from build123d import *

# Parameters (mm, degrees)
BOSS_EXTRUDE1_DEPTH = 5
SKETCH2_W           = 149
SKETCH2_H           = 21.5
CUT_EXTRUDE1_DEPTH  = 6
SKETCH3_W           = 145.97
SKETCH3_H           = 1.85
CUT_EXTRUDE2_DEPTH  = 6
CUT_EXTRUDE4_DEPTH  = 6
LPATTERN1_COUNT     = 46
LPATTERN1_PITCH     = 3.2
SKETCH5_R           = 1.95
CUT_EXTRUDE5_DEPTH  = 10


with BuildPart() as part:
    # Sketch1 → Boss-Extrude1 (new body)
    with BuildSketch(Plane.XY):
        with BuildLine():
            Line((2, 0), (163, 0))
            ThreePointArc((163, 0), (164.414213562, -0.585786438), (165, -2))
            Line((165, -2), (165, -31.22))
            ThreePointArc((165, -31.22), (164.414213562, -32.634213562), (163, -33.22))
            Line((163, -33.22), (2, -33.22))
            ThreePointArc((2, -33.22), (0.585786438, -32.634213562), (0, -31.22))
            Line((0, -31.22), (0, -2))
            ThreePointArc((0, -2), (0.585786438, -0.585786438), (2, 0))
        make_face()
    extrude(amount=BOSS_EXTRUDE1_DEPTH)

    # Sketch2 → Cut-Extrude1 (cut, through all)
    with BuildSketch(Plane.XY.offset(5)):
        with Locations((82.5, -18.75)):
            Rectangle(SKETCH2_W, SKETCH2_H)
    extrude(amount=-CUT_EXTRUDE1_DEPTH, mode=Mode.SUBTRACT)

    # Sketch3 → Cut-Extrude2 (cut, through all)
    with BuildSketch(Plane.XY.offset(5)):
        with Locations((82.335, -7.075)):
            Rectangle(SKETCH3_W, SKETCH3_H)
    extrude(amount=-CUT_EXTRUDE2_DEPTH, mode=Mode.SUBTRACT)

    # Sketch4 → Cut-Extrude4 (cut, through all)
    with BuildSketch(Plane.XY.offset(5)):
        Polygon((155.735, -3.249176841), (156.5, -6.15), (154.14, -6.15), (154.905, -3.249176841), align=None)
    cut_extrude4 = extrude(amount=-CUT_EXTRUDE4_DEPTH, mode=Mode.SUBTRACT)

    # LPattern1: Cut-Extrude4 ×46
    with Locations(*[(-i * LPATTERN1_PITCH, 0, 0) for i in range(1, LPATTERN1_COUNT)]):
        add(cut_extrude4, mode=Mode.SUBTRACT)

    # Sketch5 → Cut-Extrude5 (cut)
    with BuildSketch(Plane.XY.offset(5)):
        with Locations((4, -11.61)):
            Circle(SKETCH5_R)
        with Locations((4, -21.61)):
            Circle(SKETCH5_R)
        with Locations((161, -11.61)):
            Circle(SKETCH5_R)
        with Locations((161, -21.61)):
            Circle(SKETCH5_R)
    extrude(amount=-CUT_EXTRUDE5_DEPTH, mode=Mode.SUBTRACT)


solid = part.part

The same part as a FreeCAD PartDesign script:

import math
import FreeCAD as App
import Part
import Sketcher

V = App.Vector

doc = App.newDocument("Part")
params = doc.addObject("Spreadsheet::Sheet", "Params")
for row, (alias, value) in enumerate([
    ("sketch1_radius", "2 mm"),
    ("sketch1_width", "161 mm"),
    ("sketch1_height", "29.22 mm"),
    ("pad1_length", "5 mm"),
    ("sketch2_width", "149 mm"),
    ("sketch2_height", "21.5 mm"),
    ("sketch3_width", "145.97 mm"),
    ("sketch3_height", "1.85 mm"),
    ("sketch4_length", "3 mm"),
    ("sketch4_width", "0.83 mm"),
    ("sketch4_width2", "2.36 mm"),
    ("linearpattern_pitch", "3.2 mm"),
    ("sketch5_diameter", "3.9 mm"),
    ("pocket4_length", "10 mm"),
], start=1):
    params.set(f"A{row}", alias)
    params.set(f"B{row}", "=" + value)
    params.setAlias(f"B{row}", alias)

body = doc.addObject("PartDesign::Body", "Body")

# Sketch on XY plane
sketch1 = body.newObject("Sketcher::SketchObject", "Sketch")
sketch1.AttachmentSupport = (doc.getObject("XY_Plane"), [""])
sketch1.MapMode = "FlatFace"
sketch1.addGeometry([
    Part.LineSegment(V(163, 0, 0), V(2, 0, 0)),  # 0
    Part.ArcOfCircle(Part.Circle(V(2, -2, 0), V(0, 0, 1), 2), math.radians(90), math.radians(180)),  # 1
    Part.LineSegment(V(0, -2, 0), V(0, -31.2, 0)),  # 2
    Part.ArcOfCircle(Part.Circle(V(2, -31.2, 0), V(0, 0, 1), 2), math.radians(-180), math.radians(-90)),  # 3
    Part.LineSegment(V(2, -33.2, 0), V(163, -33.2, 0)),  # 4
    Part.ArcOfCircle(Part.Circle(V(163, -31.2, 0), V(0, 0, 1), 2), math.radians(-90), math.radians(0)),  # 5
    Part.LineSegment(V(165, -31.2, 0), V(165, -2, 0)),  # 6
    Part.ArcOfCircle(Part.Circle(V(163, -2, 0), V(0, 0, 1), 2), math.radians(0), math.radians(90)),  # 7
], False)
sketch1.addConstraint([
    Sketcher.Constraint("Tangent", 0, 2, 1, 1),
    Sketcher.Constraint("Tangent", 1, 2, 2, 1),
    Sketcher.Constraint("Tangent", 2, 2, 3, 1),
    Sketcher.Constraint("Tangent", 3, 2, 4, 1),
    Sketcher.Constraint("Tangent", 4, 2, 5, 1),
    Sketcher.Constraint("Tangent", 5, 2, 6, 1),
    Sketcher.Constraint("Tangent", 6, 2, 7, 1),
    Sketcher.Constraint("Tangent", 7, 2, 0, 1),
    Sketcher.Constraint("Horizontal", 0),
    Sketcher.Constraint("Vertical", 2),
    Sketcher.Constraint("Horizontal", 4),
    Sketcher.Constraint("Vertical", 6),
    Sketcher.Constraint("Equal", 1, 3),
    Sketcher.Constraint("Equal", 3, 5),
    Sketcher.Constraint("Equal", 5, 7),
    Sketcher.Constraint("PointOnObject", 0, 2, -1),
    Sketcher.Constraint("PointOnObject", 1, 2, -2),
    Sketcher.Constraint("Radius", 1, 2.0),
    Sketcher.Constraint("DistanceX", 0, 2, 0, 1, 161.0),
    Sketcher.Constraint("DistanceY", 2, 2, 2, 1, 29.22),
])
sketch1.setExpression("Constraints[17]", "Params.sketch1_radius")
sketch1.setExpression("Constraints[18]", "Params.sketch1_width")
sketch1.setExpression("Constraints[19]", "Params.sketch1_height")
pad1 = body.newObject("PartDesign::Pad", "Pad")
pad1.Profile = sketch1
pad1.setExpression("Length", "Params.pad1_length")

# Sketch on XY plane
sketch2 = body.newObject("Sketcher::SketchObject", "Sketch001")
sketch2.AttachmentSupport = (doc.getObject("XY_Plane"), [""])
sketch2.MapMode = "FlatFace"
sketch2.AttachmentOffset = App.Placement(V(0, 0, 5), App.Rotation())
sketch2.addGeometry([
    Part.LineSegment(V(8, -8, 0), V(8, -30, 0)),
    Part.LineSegment(V(8, -30, 0), V(157, -30, 0)),
    Part.LineSegment(V(157, -30, 0), V(157, -8, 0)),
    Part.LineSegment(V(157, -8, 0), V(8, -8, 0)),
], False)
sketch2.addConstraint([
    Sketcher.Constraint("Coincident", 0, 2, 1, 1),
    Sketcher.Constraint("Coincident", 1, 2, 2, 1),
    Sketcher.Constraint("Coincident", 2, 2, 3, 1),
    Sketcher.Constraint("Coincident", 3, 2, 0, 1),
    Sketcher.Constraint("Vertical", 0),
    Sketcher.Constraint("Horizontal", 1),
    Sketcher.Constraint("Vertical", 2),
    Sketcher.Constraint("Horizontal", 3),
    Sketcher.Constraint("DistanceX", 1, 1, 1, 2, 149.0),
    Sketcher.Constraint("DistanceY", 0, 2, 0, 1, 21.5),
    Sketcher.Constraint("DistanceX", -1, 1, 0, 2, 8.0),
    Sketcher.Constraint("DistanceY", 2, 2, -1, 1, 8.0),
])
sketch2.setExpression("Constraints[8]", "Params.sketch2_width")
sketch2.setExpression("Constraints[9]", "Params.sketch2_height")
pocket1 = body.newObject("PartDesign::Pocket", "Pocket")
pocket1.Profile = sketch2
pocket1.Type = "ThroughAll"

# Sketch on XY plane
sketch3 = body.newObject("Sketcher::SketchObject", "Sketch002")
sketch3.AttachmentSupport = (doc.getObject("XY_Plane"), [""])
sketch3.MapMode = "FlatFace"
sketch3.AttachmentOffset = App.Placement(V(0, 0, 5), App.Rotation())
sketch3.addGeometry([
    Part.LineSegment(V(9.3, -6.2, 0), V(9.3, -8, 0)),
    Part.LineSegment(V(9.3, -8, 0), V(155.3, -8, 0)),
    Part.LineSegment(V(155.3, -8, 0), V(155.3, -6.2, 0)),
    Part.LineSegment(V(155.3, -6.2, 0), V(9.3, -6.2, 0)),
], False)
sketch3.addConstraint([
    Sketcher.Constraint("Coincident", 0, 2, 1, 1),
    Sketcher.Constraint("Coincident", 1, 2, 2, 1),
    Sketcher.Constraint("Coincident", 2, 2, 3, 1),
    Sketcher.Constraint("Coincident", 3, 2, 0, 1),
    Sketcher.Constraint("Vertical", 0),
    Sketcher.Constraint("Horizontal", 1),
    Sketcher.Constraint("Vertical", 2),
    Sketcher.Constraint("Horizontal", 3),
    Sketcher.Constraint("DistanceY", 0, 2, -1, 1, 8.0),
    Sketcher.Constraint("DistanceX", 1, 1, 1, 2, 145.97),
    Sketcher.Constraint("DistanceY", 0, 2, 0, 1, 1.85),
    Sketcher.Constraint("DistanceX", -1, 1, 0, 2, 9.35),
])
sketch3.setExpression("Constraints[9]", "Params.sketch3_width")
sketch3.setExpression("Constraints[10]", "Params.sketch3_height")
pocket2 = body.newObject("PartDesign::Pocket", "Pocket001")
pocket2.Profile = sketch3
pocket2.Type = "ThroughAll"

# Sketch on XY plane
sketch4 = body.newObject("Sketcher::SketchObject", "Sketch003")
sketch4.AttachmentSupport = (doc.getObject("XY_Plane"), [""])
sketch4.MapMode = "FlatFace"
sketch4.AttachmentOffset = App.Placement(V(0, 0, 5), App.Rotation())
sketch4.addGeometry([
    Part.LineSegment(V(156.5, -6.2, 0), V(155.7, -3.2, 0)),
    Part.LineSegment(V(155.7, -3.2, 0), V(154.9, -3.2, 0)),
    Part.LineSegment(V(154.9, -3.2, 0), V(154.1, -6.2, 0)),
    Part.LineSegment(V(154.1, -6.2, 0), V(156.5, -6.2, 0)),
], False)
sketch4.addConstraint([
    Sketcher.Constraint("Coincident", 0, 2, 1, 1),
    Sketcher.Constraint("Coincident", 1, 2, 2, 1),
    Sketcher.Constraint("Coincident", 2, 2, 3, 1),
    Sketcher.Constraint("Coincident", 3, 2, 0, 1),
    Sketcher.Constraint("Horizontal", 1),
    Sketcher.Constraint("Horizontal", 3),
    Sketcher.Constraint("Equal", 0, 2),
    Sketcher.Constraint("Distance", 0, 3.0),
    Sketcher.Constraint("DistanceX", 1, 2, 1, 1, 0.83),
    Sketcher.Constraint("DistanceX", 3, 1, 3, 2, 2.36),
    Sketcher.Constraint("DistanceX", -1, 1, 3, 2, 156.5),
    Sketcher.Constraint("DistanceY", 2, 2, -1, 1, 6.15),
])
sketch4.setExpression("Constraints[7]", "Params.sketch4_length")
sketch4.setExpression("Constraints[8]", "Params.sketch4_width")
sketch4.setExpression("Constraints[9]", "Params.sketch4_width2")
pocket3 = body.newObject("PartDesign::Pocket", "Pocket002")
pocket3.Profile = sketch4
pocket3.Type = "ThroughAll"
doc.recompute()

linearpattern = body.newObject("PartDesign::LinearPattern", "LinearPattern")
linearpattern.Originals = [pocket3]
linearpattern.Direction = (doc.getObject("X_Axis"), [""])
linearpattern.Mode = "offset"
linearpattern.setExpression("Offset", "Params.linearpattern_pitch")
linearpattern.Occurrences = 46
linearpattern.Reversed = True
body.Tip = linearpattern

# Sketch on XY plane
sketch5 = body.newObject("Sketcher::SketchObject", "Sketch004")
sketch5.AttachmentSupport = (doc.getObject("XY_Plane"), [""])
sketch5.MapMode = "FlatFace"
sketch5.AttachmentOffset = App.Placement(V(0, 0, 5), App.Rotation())
sketch5.addGeometry([
    Part.Circle(V(4, -11.6, 0), V(0, 0, 1), 1.9),
    Part.Circle(V(4, -21.6, 0), V(0, 0, 1), 1.9),
    Part.Circle(V(161, -11.6, 0), V(0, 0, 1), 1.9),
    Part.Circle(V(161, -21.6, 0), V(0, 0, 1), 1.9),
], False)
sketch5.addConstraint([
    Sketcher.Constraint("Equal", 0, 1),
    Sketcher.Constraint("Equal", 1, 2),
    Sketcher.Constraint("Equal", 2, 3),
    Sketcher.Constraint("Horizontal", 0, 3, 2, 3),
    Sketcher.Constraint("Horizontal", 1, 3, 3, 3),
    Sketcher.Constraint("Vertical", 0, 3, 1, 3),
    Sketcher.Constraint("Vertical", 2, 3, 3, 3),
    Sketcher.Constraint("Diameter", 0, 3.9),
    Sketcher.Constraint("DistanceX", -1, 1, 0, 3, 4.0),
    Sketcher.Constraint("DistanceX", -1, 1, 2, 3, 161.0),
    Sketcher.Constraint("DistanceY", 1, 3, 0, 3, 10.0),
    Sketcher.Constraint("DistanceY", 0, 3, -1, 1, 11.61),
])
sketch5.setExpression("Constraints[7]", "Params.sketch5_diameter")
pocket4 = body.newObject("PartDesign::Pocket", "Pocket003")
pocket4.Profile = sketch5
pocket4.setExpression("Length", "Params.pocket4_length")

doc.recompute()
